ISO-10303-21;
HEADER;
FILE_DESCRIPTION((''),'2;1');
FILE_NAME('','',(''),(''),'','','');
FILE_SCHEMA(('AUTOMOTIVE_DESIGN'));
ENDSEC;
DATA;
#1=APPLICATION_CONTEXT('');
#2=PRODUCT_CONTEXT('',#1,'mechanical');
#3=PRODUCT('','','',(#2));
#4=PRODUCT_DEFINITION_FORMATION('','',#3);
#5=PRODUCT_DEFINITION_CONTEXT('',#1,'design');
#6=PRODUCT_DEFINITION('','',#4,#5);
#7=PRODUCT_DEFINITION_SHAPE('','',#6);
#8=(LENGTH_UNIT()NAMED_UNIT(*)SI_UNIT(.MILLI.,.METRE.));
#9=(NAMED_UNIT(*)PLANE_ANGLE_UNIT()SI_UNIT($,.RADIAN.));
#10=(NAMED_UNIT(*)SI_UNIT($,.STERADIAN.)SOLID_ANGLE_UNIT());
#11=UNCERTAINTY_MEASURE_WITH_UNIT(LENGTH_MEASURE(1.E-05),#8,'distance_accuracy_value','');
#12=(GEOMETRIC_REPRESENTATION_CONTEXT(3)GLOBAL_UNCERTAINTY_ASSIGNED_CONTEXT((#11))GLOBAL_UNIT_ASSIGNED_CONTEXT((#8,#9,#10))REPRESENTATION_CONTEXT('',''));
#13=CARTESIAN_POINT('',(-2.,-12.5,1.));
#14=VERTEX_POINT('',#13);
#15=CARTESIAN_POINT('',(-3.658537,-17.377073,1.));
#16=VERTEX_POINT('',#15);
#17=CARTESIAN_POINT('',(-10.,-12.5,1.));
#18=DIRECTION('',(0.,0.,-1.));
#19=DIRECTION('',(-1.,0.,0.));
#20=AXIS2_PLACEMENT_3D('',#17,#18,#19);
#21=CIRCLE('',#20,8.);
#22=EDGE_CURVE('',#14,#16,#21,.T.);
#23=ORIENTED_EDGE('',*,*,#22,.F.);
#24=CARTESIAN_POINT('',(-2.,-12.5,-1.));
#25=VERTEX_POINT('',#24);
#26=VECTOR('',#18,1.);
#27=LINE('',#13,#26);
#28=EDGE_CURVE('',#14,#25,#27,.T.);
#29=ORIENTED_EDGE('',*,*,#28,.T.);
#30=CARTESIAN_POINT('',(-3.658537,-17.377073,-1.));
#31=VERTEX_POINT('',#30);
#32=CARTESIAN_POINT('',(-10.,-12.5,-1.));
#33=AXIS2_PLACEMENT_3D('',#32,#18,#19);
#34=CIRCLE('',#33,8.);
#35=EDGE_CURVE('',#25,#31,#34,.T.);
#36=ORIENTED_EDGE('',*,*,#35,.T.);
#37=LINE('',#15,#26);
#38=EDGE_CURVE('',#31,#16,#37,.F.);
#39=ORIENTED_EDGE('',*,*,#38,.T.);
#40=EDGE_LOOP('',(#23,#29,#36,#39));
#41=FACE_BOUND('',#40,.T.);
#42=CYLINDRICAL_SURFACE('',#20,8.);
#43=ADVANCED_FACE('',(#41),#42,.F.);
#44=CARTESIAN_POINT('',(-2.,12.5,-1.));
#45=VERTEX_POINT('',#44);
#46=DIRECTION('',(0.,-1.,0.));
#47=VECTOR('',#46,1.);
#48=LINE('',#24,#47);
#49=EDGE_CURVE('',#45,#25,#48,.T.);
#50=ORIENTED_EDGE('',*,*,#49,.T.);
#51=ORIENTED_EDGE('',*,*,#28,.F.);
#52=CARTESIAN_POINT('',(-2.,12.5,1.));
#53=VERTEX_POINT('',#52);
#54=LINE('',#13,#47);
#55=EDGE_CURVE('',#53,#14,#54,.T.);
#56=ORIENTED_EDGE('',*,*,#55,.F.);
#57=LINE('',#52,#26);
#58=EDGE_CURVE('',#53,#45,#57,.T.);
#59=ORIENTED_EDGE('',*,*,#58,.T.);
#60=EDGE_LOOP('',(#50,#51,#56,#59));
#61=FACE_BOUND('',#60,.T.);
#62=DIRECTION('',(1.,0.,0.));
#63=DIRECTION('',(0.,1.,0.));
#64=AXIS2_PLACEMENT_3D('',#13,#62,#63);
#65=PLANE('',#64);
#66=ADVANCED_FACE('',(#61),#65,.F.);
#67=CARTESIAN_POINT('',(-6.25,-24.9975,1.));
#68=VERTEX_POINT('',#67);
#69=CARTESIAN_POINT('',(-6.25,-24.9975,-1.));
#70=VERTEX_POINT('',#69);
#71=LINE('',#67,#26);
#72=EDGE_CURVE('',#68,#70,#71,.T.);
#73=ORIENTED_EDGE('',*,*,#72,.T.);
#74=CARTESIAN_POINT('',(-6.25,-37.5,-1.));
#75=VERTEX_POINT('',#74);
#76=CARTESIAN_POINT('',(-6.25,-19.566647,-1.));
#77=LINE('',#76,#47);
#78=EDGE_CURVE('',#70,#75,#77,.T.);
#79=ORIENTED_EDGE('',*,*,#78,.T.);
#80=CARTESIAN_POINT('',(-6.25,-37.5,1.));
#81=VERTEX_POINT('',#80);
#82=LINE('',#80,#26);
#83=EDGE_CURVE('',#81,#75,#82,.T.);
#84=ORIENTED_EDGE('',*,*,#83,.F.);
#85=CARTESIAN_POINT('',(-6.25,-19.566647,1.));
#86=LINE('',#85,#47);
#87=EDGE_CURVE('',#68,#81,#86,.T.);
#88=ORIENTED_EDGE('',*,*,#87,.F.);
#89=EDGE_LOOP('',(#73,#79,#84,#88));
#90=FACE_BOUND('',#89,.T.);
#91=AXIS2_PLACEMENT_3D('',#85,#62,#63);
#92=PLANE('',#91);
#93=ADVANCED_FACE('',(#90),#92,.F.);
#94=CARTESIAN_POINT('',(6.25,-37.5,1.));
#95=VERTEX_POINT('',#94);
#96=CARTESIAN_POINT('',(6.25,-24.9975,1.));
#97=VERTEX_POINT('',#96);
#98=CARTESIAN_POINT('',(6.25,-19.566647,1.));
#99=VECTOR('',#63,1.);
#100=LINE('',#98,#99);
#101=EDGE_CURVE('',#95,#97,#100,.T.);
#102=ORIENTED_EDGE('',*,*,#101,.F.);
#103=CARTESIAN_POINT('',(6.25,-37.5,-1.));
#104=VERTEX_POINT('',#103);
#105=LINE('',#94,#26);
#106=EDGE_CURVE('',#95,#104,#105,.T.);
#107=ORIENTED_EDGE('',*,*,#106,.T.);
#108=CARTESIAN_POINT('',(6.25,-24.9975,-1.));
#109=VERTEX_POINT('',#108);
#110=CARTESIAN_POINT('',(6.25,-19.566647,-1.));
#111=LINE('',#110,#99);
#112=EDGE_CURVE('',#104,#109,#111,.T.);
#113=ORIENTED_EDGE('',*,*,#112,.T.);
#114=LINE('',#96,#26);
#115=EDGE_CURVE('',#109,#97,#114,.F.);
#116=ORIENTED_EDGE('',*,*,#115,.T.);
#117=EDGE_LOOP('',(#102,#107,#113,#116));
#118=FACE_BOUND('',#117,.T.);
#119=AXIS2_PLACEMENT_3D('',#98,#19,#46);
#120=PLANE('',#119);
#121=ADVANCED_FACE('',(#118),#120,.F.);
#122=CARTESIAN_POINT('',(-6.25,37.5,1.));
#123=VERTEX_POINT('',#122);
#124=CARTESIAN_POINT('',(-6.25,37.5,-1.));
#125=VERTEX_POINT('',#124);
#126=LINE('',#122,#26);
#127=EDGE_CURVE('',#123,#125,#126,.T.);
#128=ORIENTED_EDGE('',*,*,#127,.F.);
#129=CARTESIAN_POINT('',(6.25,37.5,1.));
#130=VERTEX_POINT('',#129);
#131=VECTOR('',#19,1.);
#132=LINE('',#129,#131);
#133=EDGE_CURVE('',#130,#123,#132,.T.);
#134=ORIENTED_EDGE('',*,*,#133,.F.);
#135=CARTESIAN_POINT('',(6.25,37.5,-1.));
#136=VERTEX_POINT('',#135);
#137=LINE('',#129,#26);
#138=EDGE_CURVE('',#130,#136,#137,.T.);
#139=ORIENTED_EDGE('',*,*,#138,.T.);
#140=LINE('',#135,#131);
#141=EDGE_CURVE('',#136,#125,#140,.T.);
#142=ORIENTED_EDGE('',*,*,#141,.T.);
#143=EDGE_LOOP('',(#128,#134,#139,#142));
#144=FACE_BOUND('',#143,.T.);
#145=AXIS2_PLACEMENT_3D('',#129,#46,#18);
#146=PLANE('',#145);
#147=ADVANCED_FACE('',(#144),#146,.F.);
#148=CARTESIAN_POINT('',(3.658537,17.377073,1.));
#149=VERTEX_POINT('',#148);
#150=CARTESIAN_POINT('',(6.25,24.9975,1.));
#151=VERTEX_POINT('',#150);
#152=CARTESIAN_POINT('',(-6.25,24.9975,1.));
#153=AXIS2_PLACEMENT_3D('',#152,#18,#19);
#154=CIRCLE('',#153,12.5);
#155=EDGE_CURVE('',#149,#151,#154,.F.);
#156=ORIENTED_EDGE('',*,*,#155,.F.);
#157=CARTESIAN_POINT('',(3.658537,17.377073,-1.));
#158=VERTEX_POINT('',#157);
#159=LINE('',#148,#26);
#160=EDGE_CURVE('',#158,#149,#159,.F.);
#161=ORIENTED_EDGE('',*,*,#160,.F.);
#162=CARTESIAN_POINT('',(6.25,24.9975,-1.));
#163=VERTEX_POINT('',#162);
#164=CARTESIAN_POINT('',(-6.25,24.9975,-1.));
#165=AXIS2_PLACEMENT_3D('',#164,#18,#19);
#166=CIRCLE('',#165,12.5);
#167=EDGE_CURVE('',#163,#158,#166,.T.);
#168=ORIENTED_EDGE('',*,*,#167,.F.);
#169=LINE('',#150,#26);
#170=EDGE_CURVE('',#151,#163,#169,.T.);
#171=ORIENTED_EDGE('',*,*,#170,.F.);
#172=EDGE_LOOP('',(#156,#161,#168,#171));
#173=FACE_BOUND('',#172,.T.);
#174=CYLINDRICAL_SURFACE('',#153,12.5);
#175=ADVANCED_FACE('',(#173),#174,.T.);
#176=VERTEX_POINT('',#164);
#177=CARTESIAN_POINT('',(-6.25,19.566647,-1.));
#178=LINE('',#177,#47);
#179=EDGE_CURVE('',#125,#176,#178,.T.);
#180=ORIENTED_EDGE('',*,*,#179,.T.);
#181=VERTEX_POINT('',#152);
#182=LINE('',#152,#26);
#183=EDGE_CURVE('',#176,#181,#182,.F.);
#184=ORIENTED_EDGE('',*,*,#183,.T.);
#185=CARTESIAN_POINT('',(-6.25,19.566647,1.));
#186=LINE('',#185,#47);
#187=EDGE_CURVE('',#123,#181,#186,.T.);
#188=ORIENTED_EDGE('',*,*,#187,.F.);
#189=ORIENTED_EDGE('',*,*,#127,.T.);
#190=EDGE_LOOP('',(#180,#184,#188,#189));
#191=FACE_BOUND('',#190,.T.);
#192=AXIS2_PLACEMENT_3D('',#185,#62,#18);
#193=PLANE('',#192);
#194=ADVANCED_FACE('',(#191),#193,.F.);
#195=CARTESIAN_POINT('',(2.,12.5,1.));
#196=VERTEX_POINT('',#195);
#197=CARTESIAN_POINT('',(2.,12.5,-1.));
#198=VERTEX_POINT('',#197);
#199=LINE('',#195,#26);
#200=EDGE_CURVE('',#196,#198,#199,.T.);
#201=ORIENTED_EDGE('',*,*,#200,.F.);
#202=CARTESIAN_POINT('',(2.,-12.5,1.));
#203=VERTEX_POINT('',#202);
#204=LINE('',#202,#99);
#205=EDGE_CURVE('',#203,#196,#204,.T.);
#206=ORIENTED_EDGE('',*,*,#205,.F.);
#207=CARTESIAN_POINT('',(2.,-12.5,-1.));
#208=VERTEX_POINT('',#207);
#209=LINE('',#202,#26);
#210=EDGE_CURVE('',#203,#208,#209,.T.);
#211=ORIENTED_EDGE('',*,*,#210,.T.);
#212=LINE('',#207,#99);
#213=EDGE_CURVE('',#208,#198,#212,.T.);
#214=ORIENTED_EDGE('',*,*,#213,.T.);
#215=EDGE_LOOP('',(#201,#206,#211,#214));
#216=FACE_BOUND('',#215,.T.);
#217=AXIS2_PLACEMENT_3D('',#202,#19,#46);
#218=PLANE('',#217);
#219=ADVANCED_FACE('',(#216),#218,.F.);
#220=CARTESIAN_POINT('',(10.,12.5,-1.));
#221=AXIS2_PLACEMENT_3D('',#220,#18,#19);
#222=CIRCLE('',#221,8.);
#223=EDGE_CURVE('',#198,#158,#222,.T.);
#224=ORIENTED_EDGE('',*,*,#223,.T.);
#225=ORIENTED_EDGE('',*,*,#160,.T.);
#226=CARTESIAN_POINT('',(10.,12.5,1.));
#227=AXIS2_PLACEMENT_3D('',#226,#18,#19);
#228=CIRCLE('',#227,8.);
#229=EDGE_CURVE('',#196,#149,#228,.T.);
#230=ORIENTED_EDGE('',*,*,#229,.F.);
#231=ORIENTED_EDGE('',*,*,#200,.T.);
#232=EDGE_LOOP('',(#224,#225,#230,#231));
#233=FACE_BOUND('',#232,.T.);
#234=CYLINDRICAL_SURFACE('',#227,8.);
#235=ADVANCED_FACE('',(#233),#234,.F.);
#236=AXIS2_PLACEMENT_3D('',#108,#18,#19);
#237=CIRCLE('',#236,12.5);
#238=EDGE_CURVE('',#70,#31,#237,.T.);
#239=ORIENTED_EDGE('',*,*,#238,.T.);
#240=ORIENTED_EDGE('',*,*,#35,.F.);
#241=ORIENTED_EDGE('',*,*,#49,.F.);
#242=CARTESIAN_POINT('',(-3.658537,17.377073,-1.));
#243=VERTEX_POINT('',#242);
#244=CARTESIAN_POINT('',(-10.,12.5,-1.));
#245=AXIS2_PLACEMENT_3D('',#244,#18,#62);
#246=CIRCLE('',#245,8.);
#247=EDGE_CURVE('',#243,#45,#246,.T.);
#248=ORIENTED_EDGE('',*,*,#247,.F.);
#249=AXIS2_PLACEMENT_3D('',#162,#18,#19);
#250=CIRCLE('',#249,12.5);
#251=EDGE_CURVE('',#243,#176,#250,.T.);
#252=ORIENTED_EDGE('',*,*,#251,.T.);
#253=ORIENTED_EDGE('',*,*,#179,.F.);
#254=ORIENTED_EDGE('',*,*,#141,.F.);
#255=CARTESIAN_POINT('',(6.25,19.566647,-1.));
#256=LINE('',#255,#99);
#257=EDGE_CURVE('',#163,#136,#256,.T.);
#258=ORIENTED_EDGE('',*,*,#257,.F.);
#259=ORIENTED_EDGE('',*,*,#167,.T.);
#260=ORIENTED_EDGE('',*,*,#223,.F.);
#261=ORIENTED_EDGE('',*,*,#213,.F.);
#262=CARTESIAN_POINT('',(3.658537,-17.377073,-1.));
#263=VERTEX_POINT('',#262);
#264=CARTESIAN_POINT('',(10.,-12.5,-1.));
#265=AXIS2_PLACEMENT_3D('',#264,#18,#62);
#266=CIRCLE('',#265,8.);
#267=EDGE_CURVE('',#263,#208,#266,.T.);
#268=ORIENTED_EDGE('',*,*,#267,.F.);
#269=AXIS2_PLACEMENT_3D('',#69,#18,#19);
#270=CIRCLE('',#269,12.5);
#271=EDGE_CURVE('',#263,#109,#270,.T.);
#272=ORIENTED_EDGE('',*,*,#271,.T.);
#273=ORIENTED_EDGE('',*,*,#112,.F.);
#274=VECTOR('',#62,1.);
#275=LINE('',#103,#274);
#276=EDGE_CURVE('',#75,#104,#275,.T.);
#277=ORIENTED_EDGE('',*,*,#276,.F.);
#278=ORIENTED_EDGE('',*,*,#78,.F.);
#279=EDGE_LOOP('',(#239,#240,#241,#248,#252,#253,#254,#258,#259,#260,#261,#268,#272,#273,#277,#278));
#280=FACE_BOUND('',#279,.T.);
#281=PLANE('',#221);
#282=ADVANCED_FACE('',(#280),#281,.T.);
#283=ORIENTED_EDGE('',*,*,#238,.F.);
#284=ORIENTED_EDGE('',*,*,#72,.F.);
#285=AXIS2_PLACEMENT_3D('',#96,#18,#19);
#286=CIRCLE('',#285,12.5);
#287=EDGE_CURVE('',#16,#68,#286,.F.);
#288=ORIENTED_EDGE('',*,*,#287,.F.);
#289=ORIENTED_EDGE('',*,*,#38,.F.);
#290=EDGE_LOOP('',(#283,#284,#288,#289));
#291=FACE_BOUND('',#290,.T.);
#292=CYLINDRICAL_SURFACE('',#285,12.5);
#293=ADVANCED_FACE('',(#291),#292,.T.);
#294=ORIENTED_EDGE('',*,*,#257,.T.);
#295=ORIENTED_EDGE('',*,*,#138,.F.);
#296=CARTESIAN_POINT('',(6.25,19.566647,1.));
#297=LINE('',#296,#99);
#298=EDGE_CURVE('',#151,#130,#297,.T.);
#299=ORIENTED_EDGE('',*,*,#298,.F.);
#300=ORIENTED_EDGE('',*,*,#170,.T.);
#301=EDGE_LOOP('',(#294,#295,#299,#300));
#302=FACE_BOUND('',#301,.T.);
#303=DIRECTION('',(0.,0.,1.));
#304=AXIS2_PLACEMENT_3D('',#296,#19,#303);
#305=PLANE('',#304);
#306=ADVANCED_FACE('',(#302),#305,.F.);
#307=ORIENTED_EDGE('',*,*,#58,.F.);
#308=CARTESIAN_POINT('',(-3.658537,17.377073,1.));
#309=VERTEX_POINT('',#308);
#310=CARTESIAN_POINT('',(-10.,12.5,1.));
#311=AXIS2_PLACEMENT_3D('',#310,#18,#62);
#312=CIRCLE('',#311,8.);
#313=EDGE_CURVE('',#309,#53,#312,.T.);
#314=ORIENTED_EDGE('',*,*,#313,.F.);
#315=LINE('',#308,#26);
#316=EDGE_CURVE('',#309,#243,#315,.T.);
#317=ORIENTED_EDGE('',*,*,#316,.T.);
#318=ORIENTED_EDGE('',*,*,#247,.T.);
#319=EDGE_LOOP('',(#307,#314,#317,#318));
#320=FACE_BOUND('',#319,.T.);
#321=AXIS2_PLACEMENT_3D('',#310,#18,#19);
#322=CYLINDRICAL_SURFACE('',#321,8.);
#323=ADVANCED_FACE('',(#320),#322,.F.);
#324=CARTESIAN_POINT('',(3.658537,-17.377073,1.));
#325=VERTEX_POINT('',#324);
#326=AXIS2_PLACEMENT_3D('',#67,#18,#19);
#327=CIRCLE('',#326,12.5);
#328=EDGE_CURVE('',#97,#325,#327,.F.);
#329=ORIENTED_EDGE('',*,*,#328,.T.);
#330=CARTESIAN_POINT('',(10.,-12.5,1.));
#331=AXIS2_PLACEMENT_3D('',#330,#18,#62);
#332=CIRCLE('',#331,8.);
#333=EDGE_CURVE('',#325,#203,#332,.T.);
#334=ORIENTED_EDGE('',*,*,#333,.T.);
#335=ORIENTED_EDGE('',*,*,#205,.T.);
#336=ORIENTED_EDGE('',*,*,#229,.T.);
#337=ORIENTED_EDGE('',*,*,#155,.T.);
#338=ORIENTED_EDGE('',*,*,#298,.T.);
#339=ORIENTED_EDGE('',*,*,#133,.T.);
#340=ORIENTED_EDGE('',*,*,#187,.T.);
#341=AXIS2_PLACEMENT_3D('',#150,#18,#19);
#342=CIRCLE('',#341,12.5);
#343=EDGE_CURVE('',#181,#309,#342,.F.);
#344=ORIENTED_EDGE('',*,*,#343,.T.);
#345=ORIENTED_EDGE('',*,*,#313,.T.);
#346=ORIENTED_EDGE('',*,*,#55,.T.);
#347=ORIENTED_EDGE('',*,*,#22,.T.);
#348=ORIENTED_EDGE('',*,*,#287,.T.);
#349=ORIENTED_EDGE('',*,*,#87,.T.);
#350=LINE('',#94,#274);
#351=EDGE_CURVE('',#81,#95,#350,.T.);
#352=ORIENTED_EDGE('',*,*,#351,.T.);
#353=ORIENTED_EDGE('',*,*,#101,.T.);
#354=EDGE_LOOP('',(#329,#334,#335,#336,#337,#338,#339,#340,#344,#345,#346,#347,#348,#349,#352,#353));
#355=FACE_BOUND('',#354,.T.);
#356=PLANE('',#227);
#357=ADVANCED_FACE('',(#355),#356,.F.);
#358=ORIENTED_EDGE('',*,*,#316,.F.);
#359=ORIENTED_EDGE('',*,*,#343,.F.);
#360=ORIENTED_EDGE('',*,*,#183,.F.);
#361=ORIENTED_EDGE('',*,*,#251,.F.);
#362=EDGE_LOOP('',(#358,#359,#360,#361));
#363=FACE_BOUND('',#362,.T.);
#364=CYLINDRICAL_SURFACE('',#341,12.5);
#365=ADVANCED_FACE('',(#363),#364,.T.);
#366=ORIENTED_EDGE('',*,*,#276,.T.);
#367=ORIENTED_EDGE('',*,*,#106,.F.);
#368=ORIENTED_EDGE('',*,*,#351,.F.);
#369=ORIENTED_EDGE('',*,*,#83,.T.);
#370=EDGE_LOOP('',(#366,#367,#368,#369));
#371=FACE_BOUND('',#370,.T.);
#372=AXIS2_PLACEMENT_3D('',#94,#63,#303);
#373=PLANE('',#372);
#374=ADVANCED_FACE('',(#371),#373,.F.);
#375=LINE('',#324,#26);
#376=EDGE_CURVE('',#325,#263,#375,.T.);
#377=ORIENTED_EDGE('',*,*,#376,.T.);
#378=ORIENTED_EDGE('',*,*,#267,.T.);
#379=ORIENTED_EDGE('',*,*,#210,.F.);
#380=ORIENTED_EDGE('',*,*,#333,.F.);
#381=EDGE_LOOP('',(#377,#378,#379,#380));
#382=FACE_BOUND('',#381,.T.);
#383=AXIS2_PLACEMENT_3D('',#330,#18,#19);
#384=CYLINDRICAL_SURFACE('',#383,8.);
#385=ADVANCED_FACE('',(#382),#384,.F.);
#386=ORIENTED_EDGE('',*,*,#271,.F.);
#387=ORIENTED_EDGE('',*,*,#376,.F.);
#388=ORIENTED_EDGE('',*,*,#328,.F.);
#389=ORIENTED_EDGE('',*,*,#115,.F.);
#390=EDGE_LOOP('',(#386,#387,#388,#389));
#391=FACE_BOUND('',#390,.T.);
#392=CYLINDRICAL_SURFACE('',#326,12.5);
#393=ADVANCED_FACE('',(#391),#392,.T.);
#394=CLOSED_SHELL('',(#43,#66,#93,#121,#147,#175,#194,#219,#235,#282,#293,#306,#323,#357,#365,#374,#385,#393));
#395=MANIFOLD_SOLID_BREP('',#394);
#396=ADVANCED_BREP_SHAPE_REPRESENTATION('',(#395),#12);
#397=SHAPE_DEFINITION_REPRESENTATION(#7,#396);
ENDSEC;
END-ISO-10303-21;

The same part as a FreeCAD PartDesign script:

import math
import FreeCAD as App
import Part
import Sketcher
from FreeCAD import Vector
Q = App.Units.Quantity


def edges_at(feature, points):
    """Names of the edges that pass closest to the given points."""
    edges = feature.Shape.Edges
    near = lambda p: min(range(len(edges)), key=lambda i: edges[i].distToShape(Part.Vertex(*p))[0])
    return sorted({f"Edge{near(p) + 1}" for p in points})

doc = App.newDocument("Part")
params = doc.addObject("Spreadsheet::Sheet", "Params")
for row, (alias, value) in enumerate([
    ("sketch1_radius", "8 mm"),
    ("sketch1_height", "25 mm"),
    ("sketch1_width", "12.5 mm"),
    ("pad1_length", "2 mm"),
    ("fillet_radius", "12.5 mm"),
], start=1):
    params.set(f"A{row}", alias)
    params.set(f"B{row}", "=" + value)
    params.setAlias(f"B{row}", alias)

body = doc.addObject("PartDesign::Body", "Body")

sketch1 = doc.addObject("Sketcher::SketchObject", "Sketch")
body.addObject(sketch1)
sketch1.AttachmentSupport = (doc.XY_Plane, [""])
sketch1.MapMode = "FlatFace"
sketch1.addGeometry([
    Part.LineSegment(Vector(2, -12, 0), Vector(2, 12, 0)),
    Part.ArcOfCircle(Part.Circle(Vector(10, 12, 0), Vector(0, 0, 1), 8), math.radians(118), math.radians(180)),
    Part.LineSegment(Vector(6, 20, 0), Vector(6, 38, 0)),
    Part.LineSegment(Vector(6, 38, 0), Vector(-6, 38, 0)),
    Part.LineSegment(Vector(-6, 38, 0), Vector(-6, 20, 0)),
    Part.ArcOfCircle(Part.Circle(Vector(-10, 12, 0), Vector(0, 0, 1), 8), math.radians(0), math.radians(62)),
    Part.LineSegment(Vector(-2, 12, 0), Vector(-2, -12, 0)),
    Part.ArcOfCircle(Part.Circle(Vector(-10, -12, 0), Vector(0, 0, 1), 8), math.radians(-62), math.radians(0)),
    Part.LineSegment(Vector(-6, -20, 0), Vector(-6, -38, 0)),
    Part.LineSegment(Vector(-6, -38, 0), Vector(6, -38, 0)),
    Part.LineSegment(Vector(6, -38, 0), Vector(6, -20, 0)),
    Part.ArcOfCircle(Part.Circle(Vector(10, -12, 0), Vector(0, 0, 1), 8), math.radians(-180), math.radians(-118)),
], False)
sketch1.addConstraint([
    Sketcher.Constraint("Tangent", 0, 2, 1, 2),
    Sketcher.Constraint("Coincident", 1, 1, 2, 1),
    Sketcher.Constraint("Coincident", 2, 2, 3, 1),
    Sketcher.Constraint("Coincident", 3, 2, 4, 1),
    Sketcher.Constraint("Coincident", 4, 2, 5, 2),
    Sketcher.Constraint("Tangent", 5, 1, 6, 1),
    Sketcher.Constraint("Tangent", 6, 2, 7, 2),
    Sketcher.Constraint("Coincident", 7, 1, 8, 1),
    Sketcher.Constraint("Coincident", 8, 2, 9, 1),
    Sketcher.Constraint("Coincident", 9, 2, 10, 1),
    Sketcher.Constraint("Coincident", 10, 2, 11, 2),
    Sketcher.Constraint("Tangent", 11, 1, 0, 1),
    Sketcher.Constraint("Vertical", 0),
    Sketcher.Constraint("Vertical", 2),
    Sketcher.Constraint("Horizontal", 3),
    Sketcher.Constraint("Vertical", 4),
    Sketcher.Constraint("Vertical", 6),
    Sketcher.Constraint("Vertical", 8),
    Sketcher.Constraint("Horizontal", 9),
    Sketcher.Constraint("Vertical", 10),
    Sketcher.Constraint("Equal", 1, 5),
    Sketcher.Constraint("Equal", 5, 7),
    Sketcher.Constraint("Equal", 7, 11),
    Sketcher.Constraint("Symmetric", 1, 3, 7, 3, -1, 1),
    Sketcher.Constraint("Symmetric", 2, 2, 8, 2, -1, 1),
    Sketcher.Constraint("Symmetric", 4, 2, 10, 2, -1, 1),
    Sketcher.Constraint("Symmetric", 1, 1, 4, 2, -2),
    Sketcher.Constraint("Radius", 1, Q("8 mm")),
    Sketcher.Constraint("DistanceY", 0, 1, 0, 2, Q("25 mm")),
    Sketcher.Constraint("DistanceX", 3, 2, 3, 1, Q("12.5 mm")),
    Sketcher.Constraint("DistanceX", -1, 1, 1, 3, Q("10 mm")),
    Sketcher.Constraint("DistanceY", 1, 3, 2, 2, Q("25 mm")),
])
sketch1.setExpression("Constraints[27]", "Params.sketch1_radius")
sketch1.setExpression("Constraints[28]", "Params.sketch1_height")
sketch1.setExpression("Constraints[29]", "Params.sketch1_width")
pad1 = doc.addObject("PartDesign::Pad", "Pad")
body.addObject(pad1)
pad1.Profile = sketch1
pad1.setExpression("Length", "Params.pad1_length")
pad1.Midplane = True
doc.recompute()

fillet = doc.addObject("PartDesign::Fillet", "Fillet")
body.addObject(fillet)
fillet.Base = (pad1, edges_at(pad1, [
    (6.25, -19.567, 0),
    (-6.25, -19.567, 0),
    (-6.25, 19.567, 0),
    (6.25, 19.567, 0),
]))
fillet.setExpression("Radius", "Params.fillet_radius")

doc.recompute()
